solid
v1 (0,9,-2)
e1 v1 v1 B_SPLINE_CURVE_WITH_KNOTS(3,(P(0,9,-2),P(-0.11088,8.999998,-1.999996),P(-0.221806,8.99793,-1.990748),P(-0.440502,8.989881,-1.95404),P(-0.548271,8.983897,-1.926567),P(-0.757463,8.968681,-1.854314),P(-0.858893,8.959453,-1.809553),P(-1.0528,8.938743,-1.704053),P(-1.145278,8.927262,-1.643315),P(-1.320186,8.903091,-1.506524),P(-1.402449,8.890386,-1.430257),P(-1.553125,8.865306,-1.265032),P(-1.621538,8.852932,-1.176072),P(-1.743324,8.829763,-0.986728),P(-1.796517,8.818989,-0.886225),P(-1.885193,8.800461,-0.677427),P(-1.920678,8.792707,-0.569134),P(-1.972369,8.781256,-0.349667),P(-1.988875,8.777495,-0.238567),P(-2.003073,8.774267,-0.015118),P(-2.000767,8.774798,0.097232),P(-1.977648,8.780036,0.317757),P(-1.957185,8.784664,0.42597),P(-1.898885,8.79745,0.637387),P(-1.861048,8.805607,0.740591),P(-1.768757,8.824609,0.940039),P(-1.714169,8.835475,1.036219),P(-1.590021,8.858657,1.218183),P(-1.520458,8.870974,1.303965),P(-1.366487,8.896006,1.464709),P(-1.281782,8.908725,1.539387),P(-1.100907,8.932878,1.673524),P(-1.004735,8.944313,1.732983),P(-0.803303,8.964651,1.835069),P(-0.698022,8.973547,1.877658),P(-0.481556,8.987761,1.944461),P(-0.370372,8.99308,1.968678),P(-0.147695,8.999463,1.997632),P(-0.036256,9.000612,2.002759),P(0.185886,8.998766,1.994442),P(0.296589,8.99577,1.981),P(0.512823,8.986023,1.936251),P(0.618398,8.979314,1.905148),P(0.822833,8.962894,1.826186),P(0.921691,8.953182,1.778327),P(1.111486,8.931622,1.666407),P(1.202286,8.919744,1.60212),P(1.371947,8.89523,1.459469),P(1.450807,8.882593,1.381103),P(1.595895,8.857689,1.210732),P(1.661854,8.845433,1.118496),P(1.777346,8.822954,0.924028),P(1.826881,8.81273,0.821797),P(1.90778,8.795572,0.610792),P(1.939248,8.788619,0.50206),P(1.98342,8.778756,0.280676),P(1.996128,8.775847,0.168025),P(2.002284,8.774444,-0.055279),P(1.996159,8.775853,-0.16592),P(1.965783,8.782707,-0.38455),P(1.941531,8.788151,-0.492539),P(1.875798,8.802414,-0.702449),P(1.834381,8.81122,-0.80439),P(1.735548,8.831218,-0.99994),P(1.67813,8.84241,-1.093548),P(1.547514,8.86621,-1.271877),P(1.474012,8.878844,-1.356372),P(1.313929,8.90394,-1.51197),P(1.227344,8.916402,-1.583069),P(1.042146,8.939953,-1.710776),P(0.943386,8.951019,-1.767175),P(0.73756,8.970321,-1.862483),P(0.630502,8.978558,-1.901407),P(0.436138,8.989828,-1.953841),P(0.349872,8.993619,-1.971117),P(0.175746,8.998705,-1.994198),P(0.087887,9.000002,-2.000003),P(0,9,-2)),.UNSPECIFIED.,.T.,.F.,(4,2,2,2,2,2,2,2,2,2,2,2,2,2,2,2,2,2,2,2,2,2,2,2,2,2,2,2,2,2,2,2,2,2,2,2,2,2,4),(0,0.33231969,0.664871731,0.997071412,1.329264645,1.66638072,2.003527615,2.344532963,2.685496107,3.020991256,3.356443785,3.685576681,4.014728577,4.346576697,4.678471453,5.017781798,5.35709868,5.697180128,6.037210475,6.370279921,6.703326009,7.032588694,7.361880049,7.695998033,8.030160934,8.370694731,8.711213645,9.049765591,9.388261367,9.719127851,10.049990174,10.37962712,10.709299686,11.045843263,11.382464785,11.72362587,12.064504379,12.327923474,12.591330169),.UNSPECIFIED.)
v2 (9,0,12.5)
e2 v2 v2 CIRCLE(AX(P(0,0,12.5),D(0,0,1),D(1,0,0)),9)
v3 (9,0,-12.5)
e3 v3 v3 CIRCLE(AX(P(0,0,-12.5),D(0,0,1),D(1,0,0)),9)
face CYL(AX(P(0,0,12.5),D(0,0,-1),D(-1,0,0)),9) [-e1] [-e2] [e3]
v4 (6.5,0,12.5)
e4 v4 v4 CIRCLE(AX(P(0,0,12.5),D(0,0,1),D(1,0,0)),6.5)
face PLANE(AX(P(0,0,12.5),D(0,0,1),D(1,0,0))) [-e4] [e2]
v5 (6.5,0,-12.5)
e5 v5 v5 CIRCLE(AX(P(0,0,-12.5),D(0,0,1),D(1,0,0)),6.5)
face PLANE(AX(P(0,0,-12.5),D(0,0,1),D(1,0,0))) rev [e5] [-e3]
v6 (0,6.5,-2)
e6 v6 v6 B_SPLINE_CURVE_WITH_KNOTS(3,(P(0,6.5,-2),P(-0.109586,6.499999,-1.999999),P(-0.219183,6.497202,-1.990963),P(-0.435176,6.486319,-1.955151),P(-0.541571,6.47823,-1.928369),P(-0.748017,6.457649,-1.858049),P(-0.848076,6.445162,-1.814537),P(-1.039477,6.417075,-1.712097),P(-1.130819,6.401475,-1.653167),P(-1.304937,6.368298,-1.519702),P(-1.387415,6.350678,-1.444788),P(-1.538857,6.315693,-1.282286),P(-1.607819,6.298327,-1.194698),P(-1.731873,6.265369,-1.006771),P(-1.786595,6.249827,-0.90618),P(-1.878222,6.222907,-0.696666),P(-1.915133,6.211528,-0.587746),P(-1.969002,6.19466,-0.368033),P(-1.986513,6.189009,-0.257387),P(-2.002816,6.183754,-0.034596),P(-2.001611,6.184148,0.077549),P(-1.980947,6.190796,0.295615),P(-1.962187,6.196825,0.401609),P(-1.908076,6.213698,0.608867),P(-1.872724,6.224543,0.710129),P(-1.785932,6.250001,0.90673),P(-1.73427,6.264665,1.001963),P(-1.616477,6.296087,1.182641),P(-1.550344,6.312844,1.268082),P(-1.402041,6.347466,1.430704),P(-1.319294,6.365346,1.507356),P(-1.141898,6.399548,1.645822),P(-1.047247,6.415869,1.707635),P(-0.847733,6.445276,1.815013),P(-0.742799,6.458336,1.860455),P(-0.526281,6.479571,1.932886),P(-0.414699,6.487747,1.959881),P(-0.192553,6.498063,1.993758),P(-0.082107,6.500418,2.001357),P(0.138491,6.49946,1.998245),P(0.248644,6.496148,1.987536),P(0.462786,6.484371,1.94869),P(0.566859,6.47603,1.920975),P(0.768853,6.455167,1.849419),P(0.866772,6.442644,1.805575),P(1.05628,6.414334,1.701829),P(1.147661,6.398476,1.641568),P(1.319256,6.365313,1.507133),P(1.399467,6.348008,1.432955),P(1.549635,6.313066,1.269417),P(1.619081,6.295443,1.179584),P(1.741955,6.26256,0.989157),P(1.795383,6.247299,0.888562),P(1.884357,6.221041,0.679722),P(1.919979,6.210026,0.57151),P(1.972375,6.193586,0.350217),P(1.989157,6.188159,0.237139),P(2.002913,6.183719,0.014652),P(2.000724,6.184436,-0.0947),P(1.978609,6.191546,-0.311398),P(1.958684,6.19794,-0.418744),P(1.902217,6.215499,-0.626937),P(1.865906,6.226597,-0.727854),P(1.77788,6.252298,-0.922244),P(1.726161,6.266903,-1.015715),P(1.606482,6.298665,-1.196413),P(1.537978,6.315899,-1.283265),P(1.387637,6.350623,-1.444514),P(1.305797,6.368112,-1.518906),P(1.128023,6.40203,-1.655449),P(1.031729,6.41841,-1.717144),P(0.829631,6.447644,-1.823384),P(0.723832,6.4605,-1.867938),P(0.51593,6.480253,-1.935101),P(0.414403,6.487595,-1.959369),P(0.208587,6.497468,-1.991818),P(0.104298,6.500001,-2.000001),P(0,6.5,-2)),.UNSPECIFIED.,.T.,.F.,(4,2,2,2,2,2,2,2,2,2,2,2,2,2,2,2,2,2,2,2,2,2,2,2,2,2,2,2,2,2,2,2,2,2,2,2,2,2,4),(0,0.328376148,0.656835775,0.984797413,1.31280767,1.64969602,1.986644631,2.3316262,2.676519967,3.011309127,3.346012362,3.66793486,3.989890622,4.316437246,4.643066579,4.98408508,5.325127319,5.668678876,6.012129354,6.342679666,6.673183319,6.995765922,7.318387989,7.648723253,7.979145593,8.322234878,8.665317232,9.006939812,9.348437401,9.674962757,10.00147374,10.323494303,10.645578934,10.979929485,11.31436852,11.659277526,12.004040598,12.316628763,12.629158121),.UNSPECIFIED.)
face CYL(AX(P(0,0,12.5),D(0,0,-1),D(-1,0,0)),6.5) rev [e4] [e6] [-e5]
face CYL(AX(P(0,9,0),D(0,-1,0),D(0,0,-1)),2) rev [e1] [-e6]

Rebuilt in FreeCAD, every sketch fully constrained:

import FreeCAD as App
import Part
import Sketcher
from FreeCAD import Vector

doc = App.newDocument("Part")
body = doc.addObject("PartDesign::Body", "Body")

# Sketch on XY plane
sketch1 = body.newObject("Sketcher::SketchObject", "Sketch")
sketch1.AttachmentSupport = (doc.getObject("XY_Plane"), [""])
sketch1.MapMode = "FlatFace"
sketch1.addGeometry([
    Part.Circle(Vector(0, 0, 0), Vector(0, 0, 1), 9),
    Part.Circle(Vector(0, 0, 0), Vector(0, 0, 1), 6),
], False)
sketch1.addConstraint([
    Sketcher.Constraint("Coincident", 0, 3, -1, 1),
    Sketcher.Constraint("Coincident", 1, 3, -1, 1),
    Sketcher.Constraint("Diameter", 0, 18.0),
    Sketcher.Constraint("Diameter", 1, 13.0),
])
pad1 = body.newObject("PartDesign::Pad", "Pad")
pad1.Profile = sketch1
pad1.Length = 25
pad1.Midplane = True

# Sketch on XZ plane
sketch2 = body.newObject("Sketcher::SketchObject", "Sketch001")
sketch2.AttachmentSupport = (doc.getObject("XZ_Plane"), [""])
sketch2.MapMode = "FlatFace"
sketch2.addGeometry(Part.Circle(Vector(0, 0, 0), Vector(0, 0, 1), 2), False)
sketch2.addConstraint([
    Sketcher.Constraint("Coincident", 0, 3, -1, 1),
    Sketcher.Constraint("Diameter", 0, 4.0),
])
pocket1 = body.newObject("PartDesign::Pocket", "Pocket")
pocket1.Profile = sketch2
pocket1.Type = "ThroughAll"

doc.recompute()
